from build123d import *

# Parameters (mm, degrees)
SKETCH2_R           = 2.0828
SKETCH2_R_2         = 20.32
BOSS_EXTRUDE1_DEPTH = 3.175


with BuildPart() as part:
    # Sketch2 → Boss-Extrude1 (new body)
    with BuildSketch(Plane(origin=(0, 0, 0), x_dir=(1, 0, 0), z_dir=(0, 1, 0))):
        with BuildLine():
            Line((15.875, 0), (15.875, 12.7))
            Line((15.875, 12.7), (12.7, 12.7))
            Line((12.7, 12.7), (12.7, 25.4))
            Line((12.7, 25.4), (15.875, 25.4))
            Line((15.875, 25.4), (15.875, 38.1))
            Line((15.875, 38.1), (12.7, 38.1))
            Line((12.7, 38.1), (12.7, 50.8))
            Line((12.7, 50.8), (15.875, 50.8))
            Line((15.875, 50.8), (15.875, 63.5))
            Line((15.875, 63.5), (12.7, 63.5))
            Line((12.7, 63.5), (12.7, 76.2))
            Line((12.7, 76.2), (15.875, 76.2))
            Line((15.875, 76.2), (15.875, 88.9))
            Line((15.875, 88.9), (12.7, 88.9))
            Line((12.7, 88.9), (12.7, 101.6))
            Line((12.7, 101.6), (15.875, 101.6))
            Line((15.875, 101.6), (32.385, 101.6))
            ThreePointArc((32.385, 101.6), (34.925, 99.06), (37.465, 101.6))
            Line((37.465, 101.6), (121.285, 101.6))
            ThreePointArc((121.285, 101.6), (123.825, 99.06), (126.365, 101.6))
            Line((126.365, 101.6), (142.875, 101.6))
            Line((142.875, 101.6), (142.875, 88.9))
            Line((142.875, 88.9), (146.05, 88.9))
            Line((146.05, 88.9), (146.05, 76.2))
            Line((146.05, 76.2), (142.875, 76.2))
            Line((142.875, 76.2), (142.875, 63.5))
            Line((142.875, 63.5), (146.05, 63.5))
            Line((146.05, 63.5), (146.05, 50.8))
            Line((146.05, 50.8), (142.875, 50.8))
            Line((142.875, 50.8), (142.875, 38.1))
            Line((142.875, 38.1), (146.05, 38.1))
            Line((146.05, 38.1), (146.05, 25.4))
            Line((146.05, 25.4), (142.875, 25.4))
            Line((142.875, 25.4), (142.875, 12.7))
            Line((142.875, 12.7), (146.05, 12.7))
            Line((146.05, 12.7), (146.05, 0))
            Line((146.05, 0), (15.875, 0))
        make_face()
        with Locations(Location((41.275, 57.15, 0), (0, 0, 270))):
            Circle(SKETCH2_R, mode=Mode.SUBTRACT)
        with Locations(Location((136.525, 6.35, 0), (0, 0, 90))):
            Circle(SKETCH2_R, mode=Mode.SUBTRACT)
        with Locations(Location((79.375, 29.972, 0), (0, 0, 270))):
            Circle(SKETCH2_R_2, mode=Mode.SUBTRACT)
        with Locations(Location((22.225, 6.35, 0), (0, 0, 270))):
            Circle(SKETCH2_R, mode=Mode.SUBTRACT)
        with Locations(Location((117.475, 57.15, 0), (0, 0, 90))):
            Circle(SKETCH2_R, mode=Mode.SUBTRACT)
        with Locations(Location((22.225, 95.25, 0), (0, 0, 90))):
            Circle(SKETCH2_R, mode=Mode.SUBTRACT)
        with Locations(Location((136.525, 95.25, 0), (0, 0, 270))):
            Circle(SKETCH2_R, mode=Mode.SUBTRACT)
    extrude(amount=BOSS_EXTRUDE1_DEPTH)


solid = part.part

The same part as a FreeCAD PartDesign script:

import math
import FreeCAD as App
import Part
import Sketcher

V = App.Vector
Q = App.Units.Quantity

doc = App.newDocument("Part")
body = doc.addObject("PartDesign::Body", "Body")

# Sketch on XZ plane
sketch1 = body.newObject("Sketcher::SketchObject", "Sketch")
sketch1.AttachmentSupport = (doc.getObject("XZ_Plane"), [""])
sketch1.MapMode = "FlatFace"
sketch1.addGeometry([
    Part.LineSegment(V(15.875, -12.7, 0), V(15.875, 0, 0)),  # 0
    Part.LineSegment(V(15.875, 0, 0), V(146.05, 0, 0)),  # 1
    Part.LineSegment(V(146.05, 0, 0), V(146.05, -12.7, 0)),  # 2
    Part.LineSegment(V(146.05, -12.7, 0), V(142.875, -12.7, 0)),  # 3
    Part.LineSegment(V(142.875, -12.7, 0), V(142.875, -25.4, 0)),  # 4
    Part.LineSegment(V(142.875, -25.4, 0), V(146.05, -25.4, 0)),  # 5
    Part.LineSegment(V(146.05, -25.4, 0), V(146.05, -38.1, 0)),  # 6
    Part.LineSegment(V(146.05, -38.1, 0), V(142.875, -38.1, 0)),  # 7
    Part.LineSegment(V(142.875, -38.1, 0), V(142.875, -50.8, 0)),  # 8
    Part.LineSegment(V(142.875, -50.8, 0), V(146.05, -50.8, 0)),  # 9
    Part.LineSegment(V(146.05, -50.8, 0), V(146.05, -63.5, 0)),  # 10
    Part.LineSegment(V(146.05, -63.5, 0), V(142.875, -63.5, 0)),  # 11
    Part.LineSegment(V(142.875, -63.5, 0), V(142.875, -76.2, 0)),  # 12
    Part.LineSegment(V(142.875, -76.2, 0), V(146.05, -76.2, 0)),  # 13
    Part.LineSegment(V(146.05, -76.2, 0), V(146.05, -88.9, 0)),  # 14
    Part.LineSegment(V(146.05, -88.9, 0), V(142.875, -88.9, 0)),  # 15
    Part.LineSegment(V(142.875, -88.9, 0), V(142.875, -101.6, 0)),  # 16
    Part.LineSegment(V(142.875, -101.6, 0), V(126.365, -101.6, 0)),  # 17
    Part.ArcOfCircle(Part.Circle(V(123.825, -101.6, 0), V(0, 0, 1), 2.54), math.radians(0), math.radians(180)),  # 18
    Part.LineSegment(V(121.285, -101.6, 0), V(37.465, -101.6, 0)),  # 19
    Part.ArcOfCircle(Part.Circle(V(34.925, -101.6, 0), V(0, 0, 1), 2.54), math.radians(0), math.radians(180)),  # 20
    Part.LineSegment(V(32.385, -101.6, 0), V(12.7, -101.6, 0)),  # 21
    Part.LineSegment(V(12.7, -101.6, 0), V(12.7, -88.9, 0)),  # 22
    Part.LineSegment(V(12.7, -88.9, 0), V(15.875, -88.9, 0)),  # 23
    Part.LineSegment(V(15.875, -88.9, 0), V(15.875, -76.2, 0)),  # 24
    Part.LineSegment(V(15.875, -76.2, 0), V(12.7, -76.2, 0)),  # 25
    Part.LineSegment(V(12.7, -76.2, 0), V(12.7, -63.5, 0)),  # 26
    Part.LineSegment(V(12.7, -63.5, 0), V(15.875, -63.5, 0)),  # 27
    Part.LineSegment(V(15.875, -63.5, 0), V(15.875, -50.8, 0)),  # 28
    Part.LineSegment(V(15.875, -50.8, 0), V(12.7, -50.8, 0)),  # 29
    Part.LineSegment(V(12.7, -50.8, 0), V(12.7, -38.1, 0)),  # 30
    Part.LineSegment(V(12.7, -38.1, 0), V(15.875, -38.1, 0)),  # 31
    Part.LineSegment(V(15.875, -38.1, 0), V(15.875, -25.4, 0)),  # 32
    Part.LineSegment(V(15.875, -25.4, 0), V(12.7, -25.4, 0)),  # 33
    Part.LineSegment(V(12.7, -25.4, 0), V(12.7, -12.7, 0)),  # 34
    Part.LineSegment(V(12.7, -12.7, 0), V(15.875, -12.7, 0)),  # 35
    Part.Circle(V(136.525, -6.35, 0), V(0, 0, 1), 2.0828),  # 36
    Part.Circle(V(22.225, -6.35, 0), V(0, 0, 1), 2.0828),  # 37
    Part.Circle(V(79.375, -29.972, 0), V(0, 0, 1), 20.32),  # 38
    Part.Circle(V(117.475, -57.15, 0), V(0, 0, 1), 2.0828),  # 39
    Part.Circle(V(136.525, -95.25, 0), V(0, 0, 1), 2.0828),  # 40
    Part.Circle(V(41.275, -57.15, 0), V(0, 0, 1), 2.0828),  # 41
    Part.Circle(V(22.225, -95.25, 0), V(0, 0, 1), 2.0828),  # 42
], False)
sketch1.addConstraint([
    Sketcher.Constraint("Coincident", 0, 2, 1, 1),
    Sketcher.Constraint("Coincident", 1, 2, 2, 1),
    Sketcher.Constraint("Coincident", 2, 2, 3, 1),
    Sketcher.Constraint("Coincident", 3, 2, 4, 1),
    Sketcher.Constraint("Coincident", 4, 2, 5, 1),
    Sketcher.Constraint("Coincident", 5, 2, 6, 1),
    Sketcher.Constraint("Coincident", 6, 2, 7, 1),
    Sketcher.Constraint("Coincident", 7, 2, 8, 1),
    Sketcher.Constraint("Coincident", 8, 2, 9, 1),
    Sketcher.Constraint("Coincident", 9, 2, 10, 1),
    Sketcher.Constraint("Coincident", 10, 2, 11, 1),
    Sketcher.Constraint("Coincident", 11, 2, 12, 1),
    Sketcher.Constraint("Coincident", 12, 2, 13, 1),
    Sketcher.Constraint("Coincident", 13, 2, 14, 1),
    Sketcher.Constraint("Coincident", 14, 2, 15, 1),
    Sketcher.Constraint("Coincident", 15, 2, 16, 1),
    Sketcher.Constraint("Coincident", 16, 2, 17, 1),
    Sketcher.Constraint("Coincident", 17, 2, 18, 1),
    Sketcher.Constraint("Coincident", 18, 2, 19, 1),
    Sketcher.Constraint("Coincident", 19, 2, 20, 1),
    Sketcher.Constraint("Coincident", 20, 2, 21, 1),
    Sketcher.Constraint("Coincident", 21, 2, 22, 1),
    Sketcher.Constraint("Coincident", 22, 2, 23, 1),
    Sketcher.Constraint("Coincident", 23, 2, 24, 1),
    Sketcher.Constraint("Coincident", 24, 2, 25, 1),
    Sketcher.Constraint("Coincident", 25, 2, 26, 1),
    Sketcher.Constraint("Coincident", 26, 2, 27, 1),
    Sketcher.Constraint("Coincident", 27, 2, 28, 1),
    Sketcher.Constraint("Coincident", 28, 2, 29, 1),
    Sketcher.Constraint("Coincident", 29, 2, 30, 1),
    Sketcher.Constraint("Coincident", 30, 2, 31, 1),
    Sketcher.Constraint("Coincident", 31, 2, 32, 1),
    Sketcher.Constraint("Coincident", 32, 2, 33, 1),
    Sketcher.Constraint("Coincident", 33, 2, 34, 1),
    Sketcher.Constraint("Coincident", 34, 2, 35, 1),
    Sketcher.Constraint("Coincident", 35, 2, 0, 1),
    Sketcher.Constraint("Vertical", 0),
    Sketcher.Constraint("Horizontal", 1),
    Sketcher.Constraint("Vertical", 2),
    Sketcher.Constraint("Horizontal", 3),
    Sketcher.Constraint("Vertical", 4),
    Sketcher.Constraint("Horizontal", 5),
    Sketcher.Constraint("Vertical", 6),
    Sketcher.Constraint("Horizontal", 7),
    Sketcher.Constraint("Vertical", 8),
    Sketcher.Constraint("Horizontal", 9),
    Sketcher.Constraint("Vertical", 10),
    Sketcher.Constraint("Horizontal", 11),
    Sketcher.Constraint("Vertical", 12),
    Sketcher.Constraint("Horizontal", 13),
    Sketcher.Constraint("Vertical", 14),
    Sketcher.Constraint("Horizontal", 15),
    Sketcher.Constraint("Vertical", 16),
    Sketcher.Constraint("Horizontal", 17),
    Sketcher.Constraint("Horizontal", 19),
    Sketcher.Constraint("Horizontal", 21),
    Sketcher.Constraint("Vertical", 22),
    Sketcher.Constraint("Horizontal", 23),
    Sketcher.Constraint("Vertical", 24),
    Sketcher.Constraint("Horizontal", 25),
    Sketcher.Constraint("Vertical", 26),
    Sketcher.Constraint("Horizontal", 27),
    Sketcher.Constraint("Vertical", 28),
    Sketcher.Constraint("Horizontal", 29),
    Sketcher.Constraint("Vertical", 30),
    Sketcher.Constraint("Horizontal", 31),
    Sketcher.Constraint("Vertical", 32),
    Sketcher.Constraint("Horizontal", 33),
    Sketcher.Constraint("Vertical", 34),
    Sketcher.Constraint("Horizontal", 35),
    Sketcher.Constraint("Equal", 18, 20),
    Sketcher.Constraint("Equal", 36, 37),
    Sketcher.Constraint("Equal", 37, 39),
    Sketcher.Constraint("Equal", 39, 40),
    Sketcher.Constraint("Equal", 40, 41),
    Sketcher.Constraint("Equal", 41, 42),
    Sketcher.Constraint("PointOnObject", 0, 2, -1),
    Sketcher.Constraint("Horizontal", 18, 3, 20, 3),
    Sketcher.Constraint("Horizontal", 36, 3, 37, 3),
    Sketcher.Constraint("Horizontal", 39, 3, 41, 3),
    Sketcher.Constraint("Horizontal", 40, 3, 42, 3),
    Sketcher.Constraint("Horizontal", 20, 3, 16, 2),
    Sketcher.Constraint("Horizontal", 17, 2, 18, 2),
    Sketcher.Constraint("Horizontal", 19, 2, 20, 2),
    Sketcher.Constraint("Horizontal", 15, 2, 22, 2),
    Sketcher.Constraint("Horizontal", 13, 2, 24, 2),
    Sketcher.Constraint("Horizontal", 11, 2, 26, 2),
    Sketcher.Constraint("Horizontal", 9, 2, 28, 2),
    Sketcher.Constraint("Horizontal", 7, 2, 30, 2),
    Sketcher.Constraint("Horizontal", 5, 2, 32, 2),
    Sketcher.Constraint("Horizontal", 3, 2, 34, 2),
    Sketcher.Constraint("Vertical", 36, 3, 40, 3),
    Sketcher.Constraint("Vertical", 37, 3, 42, 3),
    Sketcher.Constraint("Vertical", 2, 2, 5, 2),
    Sketcher.Constraint("Vertical", 4, 2, 7, 2),
    Sketcher.Constraint("Vertical", 6, 2, 9, 2),
    Sketcher.Constraint("Vertical", 8, 2, 11, 2),
    Sketcher.Constraint("Vertical", 10, 2, 13, 2),
    Sketcher.Constraint("Vertical", 12, 2, 15, 2),
    Sketcher.Constraint("Vertical", 0, 2, 23, 2),
    Sketcher.Constraint("Vertical", 22, 2, 25, 2),
    Sketcher.Constraint("Vertical", 24, 2, 27, 2),
    Sketcher.Constraint("Vertical", 26, 2, 29, 2),
    Sketcher.Constraint("Vertical", 28, 2, 31, 2),
    Sketcher.Constraint("Vertical", 30, 2, 33, 2),
    Sketcher.Constraint("Equal", 15, 23),
    Sketcher.Constraint("Equal", 2, 4),
    Sketcher.Constraint("Equal", 4, 6),
    Sketcher.Constraint("Equal", 6, 8),
    Sketcher.Constraint("Equal", 8, 10),
    Sketcher.Constraint("Equal", 10, 12),
    Sketcher.Constraint("Equal", 12, 14),
    Sketcher.Constraint("Equal", 14, 16),
    Sketcher.Constraint("Diameter", 38, Q("1.6 in")),
    Sketcher.Constraint("Radius", 18, Q("0.1 in")),
    Sketcher.Constraint("Diameter", 36, Q("0.164 in")),
    Sketcher.Constraint("DistanceX", 19, 2, 19, 1, Q("3.3 in")),
    Sketcher.Constraint("DistanceY", 0, 1, 0, 2, Q("0.5 in")),
    Sketcher.Constraint("DistanceX", 20, 3, 36, 3, Q("4 in")),
    Sketcher.Constraint("DistanceX", 37, 3, 18, 3, Q("4 in")),
    Sketcher.Constraint("DistanceY", 39, 3, 36, 3, Q("2 in")),
    Sketcher.Constraint("DistanceX", 41, 3, 39, 3, Q("3 in")),
    Sketcher.Constraint("DistanceX", 0, 2, 41, 3, Q("1 in")),
    Sketcher.Constraint("DistanceX", 39, 3, 3, 2, Q("1 in")),
    Sketcher.Constraint("DistanceX", 17, 2, 17, 1, Q("0.65 in")),
    Sketcher.Constraint("DistanceX", -1, 1, 21, 2, Q("0.5 in")),
    Sketcher.Constraint("DistanceX", 38, 3, 39, 3, Q("1.5 in")),
    Sketcher.Constraint("DistanceY", 40, 3, 39, 3, Q("1.5 in")),
    Sketcher.Constraint("DistanceX", 1, 1, 1, 2, Q("5.125 in")),
    Sketcher.Constraint("DistanceY", 36, 3, -1, 1, Q("0.25 in")),
    Sketcher.Constraint("DistanceY", 38, 3, -1, 1, Q("1.18 in")),
])
pad1 = body.newObject("PartDesign::Pad", "Pad")
pad1.Profile = sketch1
pad1.Length = Q("0.125 in")
pad1.Reversed = True

doc.recompute()
